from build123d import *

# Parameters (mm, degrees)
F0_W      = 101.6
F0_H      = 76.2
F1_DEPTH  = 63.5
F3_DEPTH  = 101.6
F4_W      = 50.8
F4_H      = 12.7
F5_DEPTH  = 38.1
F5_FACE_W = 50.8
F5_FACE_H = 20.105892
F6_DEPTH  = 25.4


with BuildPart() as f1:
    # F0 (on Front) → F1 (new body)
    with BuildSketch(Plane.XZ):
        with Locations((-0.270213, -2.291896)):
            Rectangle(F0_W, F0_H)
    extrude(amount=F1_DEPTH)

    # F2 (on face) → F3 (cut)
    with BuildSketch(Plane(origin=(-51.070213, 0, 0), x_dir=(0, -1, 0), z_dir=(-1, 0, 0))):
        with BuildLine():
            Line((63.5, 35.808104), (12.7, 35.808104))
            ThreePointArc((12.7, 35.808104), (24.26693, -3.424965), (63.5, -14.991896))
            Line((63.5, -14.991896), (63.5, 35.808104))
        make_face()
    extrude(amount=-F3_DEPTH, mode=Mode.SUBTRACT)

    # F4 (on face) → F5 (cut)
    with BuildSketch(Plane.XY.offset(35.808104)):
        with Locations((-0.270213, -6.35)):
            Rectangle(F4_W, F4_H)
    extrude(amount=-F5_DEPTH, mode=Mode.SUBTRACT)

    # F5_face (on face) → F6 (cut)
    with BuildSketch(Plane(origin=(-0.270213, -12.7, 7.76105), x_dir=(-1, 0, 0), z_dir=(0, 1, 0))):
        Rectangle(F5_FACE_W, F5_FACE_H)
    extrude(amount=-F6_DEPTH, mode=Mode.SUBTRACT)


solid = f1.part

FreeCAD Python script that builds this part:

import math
import FreeCAD as App
import Part
import Sketcher
from FreeCAD import Vector
Q = App.Units.Quantity

doc = App.newDocument("Part")
params = doc.addObject("Spreadsheet::Sheet", "Params")
for row, (alias, value) in enumerate([
    ("sketch1_width", "4 in"),
    ("sketch1_height", "3 in"),
    ("pad1_length", "2.5 in"),
    ("sketch2_width", "2 in"),
    ("pocket1_length", "4 in"),
    ("sketch3_width", "2 in"),
    ("sketch3_height", "0.5 in"),
    ("pocket2_length", "1.5 in"),
    ("sketch4_width", "2 in"),
    ("pocket3_length", "1 in"),
], start=1):
    params.set(f"A{row}", alias)
    params.set(f"B{row}", "=" + value)
    params.setAlias(f"B{row}", alias)

body = doc.addObject("PartDesign::Body", "Body")

# Sketch on XZ plane
sketch1 = body.newObject("Sketcher::SketchObject", "Sketch")
sketch1.AttachmentSupport = (doc.getObject("XZ_Plane"), [""])
sketch1.MapMode = "FlatFace"
sketch1.addGeometry([
    Part.LineSegment(Vector(-51, 36, 0), Vector(-51, -40, 0)),
    Part.LineSegment(Vector(-51, -40, 0), Vector(51, -40, 0)),
    Part.LineSegment(Vector(51, -40, 0), Vector(51, 36, 0)),
    Part.LineSegment(Vector(51, 36, 0), Vector(-51, 36, 0)),
], False)
sketch1.addConstraint([
    Sketcher.Constraint("Coincident", 0, 2, 1, 1),
    Sketcher.Constraint("Coincident", 1, 2, 2, 1),
    Sketcher.Constraint("Coincident", 2, 2, 3, 1),
    Sketcher.Constraint("Coincident", 3, 2, 0, 1),
    Sketcher.Constraint("Vertical", 0),
    Sketcher.Constraint("Horizontal", 1),
    Sketcher.Constraint("Vertical", 2),
    Sketcher.Constraint("Horizontal", 3),
    Sketcher.Constraint("DistanceX", 1, 1, 1, 2, Q("4 in")),
    Sketcher.Constraint("DistanceY", 0, 2, 0, 1, Q("3 in")),
    Sketcher.Constraint("DistanceX", 0, 2, -1, 1, Q("51.070213 mm")),
    Sketcher.Constraint("DistanceY", 0, 2, -1, 1, Q("40.391896 mm")),
])
sketch1.setExpression("Constraints[8]", "Params.sketch1_width")
sketch1.setExpression("Constraints[9]", "Params.sketch1_height")
pad1 = body.newObject("PartDesign::Pad", "Pad")
pad1.Profile = sketch1
pad1.setExpression("Length", "Params.pad1_length")

# Sketch on YZ plane
sketch2 = body.newObject("Sketcher::SketchObject", "Sketch001")
sketch2.AttachmentSupport = (doc.getObject("YZ_Plane"), [""])
sketch2.MapMode = "FlatFace"
sketch2.AttachmentOffset = App.Placement(Vector(0, 0, -51.070213), App.Rotation())
sketch2.addGeometry([
    Part.LineSegment(Vector(-64, 36, 0), Vector(-13, 36, 0)),
    Part.ArcOfCircle(Part.Circle(Vector(-55, 27, 0), Vector(0, 0, 1), 43), math.radians(-102), math.radians(12)),
    Part.LineSegment(Vector(-64, -15, 0), Vector(-64, 36, 0)),
], False)
sketch2.addConstraint([
    Sketcher.Constraint("Coincident", 0, 2, 1, 2),
    Sketcher.Constraint("Coincident", 1, 1, 2, 1),
    Sketcher.Constraint("Coincident", 2, 2, 0, 1),
    Sketcher.Constraint("Horizontal", 0),
    Sketcher.Constraint("Vertical", 2),
    Sketcher.Constraint("Equal", 0, 2),
    Sketcher.Constraint("DistanceX", 0, 1, 0, 2, Q("2 in")),
    Sketcher.Constraint("DistanceX", 0, 2, -1, 1, Q("0.5 in")),
    Sketcher.Constraint("Radius", 1, Q("42.760183 mm")),
    Sketcher.Constraint("DistanceY", -1, 1, 1, 3, Q("26.81105 mm")),
])
sketch2.setExpression("Constraints[6]", "Params.sketch2_width")
pocket1 = body.newObject("PartDesign::Pocket", "Pocket")
pocket1.Profile = sketch2
pocket1.setExpression("Length", "Params.pocket1_length")
pocket1.Reversed = True

# Sketch on XY plane
sketch3 = body.newObject("Sketcher::SketchObject", "Sketch002")
sketch3.AttachmentSupport = (doc.getObject("XY_Plane"), [""])
sketch3.MapMode = "FlatFace"
sketch3.AttachmentOffset = App.Placement(Vector(0, 0, 35.808104), App.Rotation())
sketch3.addGeometry([
    Part.LineSegment(Vector(-26, 0, 0), Vector(-26, -13, 0)),
    Part.LineSegment(Vector(-26, -13, 0), Vector(25, -13, 0)),
    Part.LineSegment(Vector(25, -13, 0), Vector(25, 0, 0)),
    Part.LineSegment(Vector(25, 0, 0), Vector(-26, 0, 0)),
], False)
sketch3.addConstraint([
    Sketcher.Constraint("Coincident", 0, 2, 1, 1),
    Sketcher.Constraint("Coincident", 1, 2, 2, 1),
    Sketcher.Constraint("Coincident", 2, 2, 3, 1),
    Sketcher.Constraint("Coincident", 3, 2, 0, 1),
    Sketcher.Constraint("Vertical", 0),
    Sketcher.Constraint("Horizontal", 1),
    Sketcher.Constraint("Vertical", 2),
    Sketcher.Constraint("Horizontal", 3),
    Sketcher.Constraint("PointOnObject", 2, 2, -1),
    Sketcher.Constraint("DistanceX", 1, 1, 1, 2, Q("2 in")),
    Sketcher.Constraint("DistanceY", 0, 2, 0, 1, Q("0.5 in")),
    Sketcher.Constraint("DistanceX", 0, 2, -1, 1, Q("25.670213 mm")),
])
sketch3.setExpression("Constraints[9]", "Params.sketch3_width")
sketch3.setExpression("Constraints[10]", "Params.sketch3_height")
pocket2 = body.newObject("PartDesign::Pocket", "Pocket001")
pocket2.Profile = sketch3
pocket2.setExpression("Length", "Params.pocket2_length")

# Sketch on XZ plane
sketch4 = body.newObject("Sketcher::SketchObject", "Sketch003")
sketch4.AttachmentSupport = (doc.getObject("XZ_Plane"), [""])
sketch4.MapMode = "FlatFace"
sketch4.AttachmentOffset = App.Placement(Vector(0, 0, 0.5 * 25.4), App.Rotation())
sketch4.addGeometry([
    Part.LineSegment(Vector(25, 18, 0), Vector(25, -2, 0)),
    Part.LineSegment(Vector(25, -2, 0), Vector(-26, -2, 0)),
    Part.LineSegment(Vector(-26, -2, 0), Vector(-26, 18, 0)),
    Part.LineSegment(Vector(-26, 18, 0), Vector(25, 18, 0)),
], False)
sketch4.addConstraint([
    Sketcher.Constraint("Coincident", 0, 2, 1, 1),
    Sketcher.Constraint("Coincident", 1, 2, 2, 1),
    Sketcher.Constraint("Coincident", 2, 2, 3, 1),
    Sketcher.Constraint("Coincident", 3, 2, 0, 1),
    Sketcher.Constraint("Vertical", 0),
    Sketcher.Constraint("Horizontal", 1),
    Sketcher.Constraint("Vertical", 2),
    Sketcher.Constraint("Horizontal", 3),
    Sketcher.Constraint("DistanceX", 1, 2, 1, 1, Q("2 in")),
    Sketcher.Constraint("DistanceY", 0, 2, 0, 1, Q("20.105892 mm")),
    Sketcher.Constraint("DistanceX", -1, 1, 0, 2, Q("25.129787 mm")),
    Sketcher.Constraint("DistanceY", 0, 2, -1, 1, Q("2.291896 mm")),
])
sketch4.setExpression("Constraints[8]", "Params.sketch4_width")
pocket3 = body.newObject("PartDesign::Pocket", "Pocket002")
pocket3.Profile = sketch4
pocket3.setExpression("Length", "Params.pocket3_length")
pocket3.Reversed = True

doc.recompute()
